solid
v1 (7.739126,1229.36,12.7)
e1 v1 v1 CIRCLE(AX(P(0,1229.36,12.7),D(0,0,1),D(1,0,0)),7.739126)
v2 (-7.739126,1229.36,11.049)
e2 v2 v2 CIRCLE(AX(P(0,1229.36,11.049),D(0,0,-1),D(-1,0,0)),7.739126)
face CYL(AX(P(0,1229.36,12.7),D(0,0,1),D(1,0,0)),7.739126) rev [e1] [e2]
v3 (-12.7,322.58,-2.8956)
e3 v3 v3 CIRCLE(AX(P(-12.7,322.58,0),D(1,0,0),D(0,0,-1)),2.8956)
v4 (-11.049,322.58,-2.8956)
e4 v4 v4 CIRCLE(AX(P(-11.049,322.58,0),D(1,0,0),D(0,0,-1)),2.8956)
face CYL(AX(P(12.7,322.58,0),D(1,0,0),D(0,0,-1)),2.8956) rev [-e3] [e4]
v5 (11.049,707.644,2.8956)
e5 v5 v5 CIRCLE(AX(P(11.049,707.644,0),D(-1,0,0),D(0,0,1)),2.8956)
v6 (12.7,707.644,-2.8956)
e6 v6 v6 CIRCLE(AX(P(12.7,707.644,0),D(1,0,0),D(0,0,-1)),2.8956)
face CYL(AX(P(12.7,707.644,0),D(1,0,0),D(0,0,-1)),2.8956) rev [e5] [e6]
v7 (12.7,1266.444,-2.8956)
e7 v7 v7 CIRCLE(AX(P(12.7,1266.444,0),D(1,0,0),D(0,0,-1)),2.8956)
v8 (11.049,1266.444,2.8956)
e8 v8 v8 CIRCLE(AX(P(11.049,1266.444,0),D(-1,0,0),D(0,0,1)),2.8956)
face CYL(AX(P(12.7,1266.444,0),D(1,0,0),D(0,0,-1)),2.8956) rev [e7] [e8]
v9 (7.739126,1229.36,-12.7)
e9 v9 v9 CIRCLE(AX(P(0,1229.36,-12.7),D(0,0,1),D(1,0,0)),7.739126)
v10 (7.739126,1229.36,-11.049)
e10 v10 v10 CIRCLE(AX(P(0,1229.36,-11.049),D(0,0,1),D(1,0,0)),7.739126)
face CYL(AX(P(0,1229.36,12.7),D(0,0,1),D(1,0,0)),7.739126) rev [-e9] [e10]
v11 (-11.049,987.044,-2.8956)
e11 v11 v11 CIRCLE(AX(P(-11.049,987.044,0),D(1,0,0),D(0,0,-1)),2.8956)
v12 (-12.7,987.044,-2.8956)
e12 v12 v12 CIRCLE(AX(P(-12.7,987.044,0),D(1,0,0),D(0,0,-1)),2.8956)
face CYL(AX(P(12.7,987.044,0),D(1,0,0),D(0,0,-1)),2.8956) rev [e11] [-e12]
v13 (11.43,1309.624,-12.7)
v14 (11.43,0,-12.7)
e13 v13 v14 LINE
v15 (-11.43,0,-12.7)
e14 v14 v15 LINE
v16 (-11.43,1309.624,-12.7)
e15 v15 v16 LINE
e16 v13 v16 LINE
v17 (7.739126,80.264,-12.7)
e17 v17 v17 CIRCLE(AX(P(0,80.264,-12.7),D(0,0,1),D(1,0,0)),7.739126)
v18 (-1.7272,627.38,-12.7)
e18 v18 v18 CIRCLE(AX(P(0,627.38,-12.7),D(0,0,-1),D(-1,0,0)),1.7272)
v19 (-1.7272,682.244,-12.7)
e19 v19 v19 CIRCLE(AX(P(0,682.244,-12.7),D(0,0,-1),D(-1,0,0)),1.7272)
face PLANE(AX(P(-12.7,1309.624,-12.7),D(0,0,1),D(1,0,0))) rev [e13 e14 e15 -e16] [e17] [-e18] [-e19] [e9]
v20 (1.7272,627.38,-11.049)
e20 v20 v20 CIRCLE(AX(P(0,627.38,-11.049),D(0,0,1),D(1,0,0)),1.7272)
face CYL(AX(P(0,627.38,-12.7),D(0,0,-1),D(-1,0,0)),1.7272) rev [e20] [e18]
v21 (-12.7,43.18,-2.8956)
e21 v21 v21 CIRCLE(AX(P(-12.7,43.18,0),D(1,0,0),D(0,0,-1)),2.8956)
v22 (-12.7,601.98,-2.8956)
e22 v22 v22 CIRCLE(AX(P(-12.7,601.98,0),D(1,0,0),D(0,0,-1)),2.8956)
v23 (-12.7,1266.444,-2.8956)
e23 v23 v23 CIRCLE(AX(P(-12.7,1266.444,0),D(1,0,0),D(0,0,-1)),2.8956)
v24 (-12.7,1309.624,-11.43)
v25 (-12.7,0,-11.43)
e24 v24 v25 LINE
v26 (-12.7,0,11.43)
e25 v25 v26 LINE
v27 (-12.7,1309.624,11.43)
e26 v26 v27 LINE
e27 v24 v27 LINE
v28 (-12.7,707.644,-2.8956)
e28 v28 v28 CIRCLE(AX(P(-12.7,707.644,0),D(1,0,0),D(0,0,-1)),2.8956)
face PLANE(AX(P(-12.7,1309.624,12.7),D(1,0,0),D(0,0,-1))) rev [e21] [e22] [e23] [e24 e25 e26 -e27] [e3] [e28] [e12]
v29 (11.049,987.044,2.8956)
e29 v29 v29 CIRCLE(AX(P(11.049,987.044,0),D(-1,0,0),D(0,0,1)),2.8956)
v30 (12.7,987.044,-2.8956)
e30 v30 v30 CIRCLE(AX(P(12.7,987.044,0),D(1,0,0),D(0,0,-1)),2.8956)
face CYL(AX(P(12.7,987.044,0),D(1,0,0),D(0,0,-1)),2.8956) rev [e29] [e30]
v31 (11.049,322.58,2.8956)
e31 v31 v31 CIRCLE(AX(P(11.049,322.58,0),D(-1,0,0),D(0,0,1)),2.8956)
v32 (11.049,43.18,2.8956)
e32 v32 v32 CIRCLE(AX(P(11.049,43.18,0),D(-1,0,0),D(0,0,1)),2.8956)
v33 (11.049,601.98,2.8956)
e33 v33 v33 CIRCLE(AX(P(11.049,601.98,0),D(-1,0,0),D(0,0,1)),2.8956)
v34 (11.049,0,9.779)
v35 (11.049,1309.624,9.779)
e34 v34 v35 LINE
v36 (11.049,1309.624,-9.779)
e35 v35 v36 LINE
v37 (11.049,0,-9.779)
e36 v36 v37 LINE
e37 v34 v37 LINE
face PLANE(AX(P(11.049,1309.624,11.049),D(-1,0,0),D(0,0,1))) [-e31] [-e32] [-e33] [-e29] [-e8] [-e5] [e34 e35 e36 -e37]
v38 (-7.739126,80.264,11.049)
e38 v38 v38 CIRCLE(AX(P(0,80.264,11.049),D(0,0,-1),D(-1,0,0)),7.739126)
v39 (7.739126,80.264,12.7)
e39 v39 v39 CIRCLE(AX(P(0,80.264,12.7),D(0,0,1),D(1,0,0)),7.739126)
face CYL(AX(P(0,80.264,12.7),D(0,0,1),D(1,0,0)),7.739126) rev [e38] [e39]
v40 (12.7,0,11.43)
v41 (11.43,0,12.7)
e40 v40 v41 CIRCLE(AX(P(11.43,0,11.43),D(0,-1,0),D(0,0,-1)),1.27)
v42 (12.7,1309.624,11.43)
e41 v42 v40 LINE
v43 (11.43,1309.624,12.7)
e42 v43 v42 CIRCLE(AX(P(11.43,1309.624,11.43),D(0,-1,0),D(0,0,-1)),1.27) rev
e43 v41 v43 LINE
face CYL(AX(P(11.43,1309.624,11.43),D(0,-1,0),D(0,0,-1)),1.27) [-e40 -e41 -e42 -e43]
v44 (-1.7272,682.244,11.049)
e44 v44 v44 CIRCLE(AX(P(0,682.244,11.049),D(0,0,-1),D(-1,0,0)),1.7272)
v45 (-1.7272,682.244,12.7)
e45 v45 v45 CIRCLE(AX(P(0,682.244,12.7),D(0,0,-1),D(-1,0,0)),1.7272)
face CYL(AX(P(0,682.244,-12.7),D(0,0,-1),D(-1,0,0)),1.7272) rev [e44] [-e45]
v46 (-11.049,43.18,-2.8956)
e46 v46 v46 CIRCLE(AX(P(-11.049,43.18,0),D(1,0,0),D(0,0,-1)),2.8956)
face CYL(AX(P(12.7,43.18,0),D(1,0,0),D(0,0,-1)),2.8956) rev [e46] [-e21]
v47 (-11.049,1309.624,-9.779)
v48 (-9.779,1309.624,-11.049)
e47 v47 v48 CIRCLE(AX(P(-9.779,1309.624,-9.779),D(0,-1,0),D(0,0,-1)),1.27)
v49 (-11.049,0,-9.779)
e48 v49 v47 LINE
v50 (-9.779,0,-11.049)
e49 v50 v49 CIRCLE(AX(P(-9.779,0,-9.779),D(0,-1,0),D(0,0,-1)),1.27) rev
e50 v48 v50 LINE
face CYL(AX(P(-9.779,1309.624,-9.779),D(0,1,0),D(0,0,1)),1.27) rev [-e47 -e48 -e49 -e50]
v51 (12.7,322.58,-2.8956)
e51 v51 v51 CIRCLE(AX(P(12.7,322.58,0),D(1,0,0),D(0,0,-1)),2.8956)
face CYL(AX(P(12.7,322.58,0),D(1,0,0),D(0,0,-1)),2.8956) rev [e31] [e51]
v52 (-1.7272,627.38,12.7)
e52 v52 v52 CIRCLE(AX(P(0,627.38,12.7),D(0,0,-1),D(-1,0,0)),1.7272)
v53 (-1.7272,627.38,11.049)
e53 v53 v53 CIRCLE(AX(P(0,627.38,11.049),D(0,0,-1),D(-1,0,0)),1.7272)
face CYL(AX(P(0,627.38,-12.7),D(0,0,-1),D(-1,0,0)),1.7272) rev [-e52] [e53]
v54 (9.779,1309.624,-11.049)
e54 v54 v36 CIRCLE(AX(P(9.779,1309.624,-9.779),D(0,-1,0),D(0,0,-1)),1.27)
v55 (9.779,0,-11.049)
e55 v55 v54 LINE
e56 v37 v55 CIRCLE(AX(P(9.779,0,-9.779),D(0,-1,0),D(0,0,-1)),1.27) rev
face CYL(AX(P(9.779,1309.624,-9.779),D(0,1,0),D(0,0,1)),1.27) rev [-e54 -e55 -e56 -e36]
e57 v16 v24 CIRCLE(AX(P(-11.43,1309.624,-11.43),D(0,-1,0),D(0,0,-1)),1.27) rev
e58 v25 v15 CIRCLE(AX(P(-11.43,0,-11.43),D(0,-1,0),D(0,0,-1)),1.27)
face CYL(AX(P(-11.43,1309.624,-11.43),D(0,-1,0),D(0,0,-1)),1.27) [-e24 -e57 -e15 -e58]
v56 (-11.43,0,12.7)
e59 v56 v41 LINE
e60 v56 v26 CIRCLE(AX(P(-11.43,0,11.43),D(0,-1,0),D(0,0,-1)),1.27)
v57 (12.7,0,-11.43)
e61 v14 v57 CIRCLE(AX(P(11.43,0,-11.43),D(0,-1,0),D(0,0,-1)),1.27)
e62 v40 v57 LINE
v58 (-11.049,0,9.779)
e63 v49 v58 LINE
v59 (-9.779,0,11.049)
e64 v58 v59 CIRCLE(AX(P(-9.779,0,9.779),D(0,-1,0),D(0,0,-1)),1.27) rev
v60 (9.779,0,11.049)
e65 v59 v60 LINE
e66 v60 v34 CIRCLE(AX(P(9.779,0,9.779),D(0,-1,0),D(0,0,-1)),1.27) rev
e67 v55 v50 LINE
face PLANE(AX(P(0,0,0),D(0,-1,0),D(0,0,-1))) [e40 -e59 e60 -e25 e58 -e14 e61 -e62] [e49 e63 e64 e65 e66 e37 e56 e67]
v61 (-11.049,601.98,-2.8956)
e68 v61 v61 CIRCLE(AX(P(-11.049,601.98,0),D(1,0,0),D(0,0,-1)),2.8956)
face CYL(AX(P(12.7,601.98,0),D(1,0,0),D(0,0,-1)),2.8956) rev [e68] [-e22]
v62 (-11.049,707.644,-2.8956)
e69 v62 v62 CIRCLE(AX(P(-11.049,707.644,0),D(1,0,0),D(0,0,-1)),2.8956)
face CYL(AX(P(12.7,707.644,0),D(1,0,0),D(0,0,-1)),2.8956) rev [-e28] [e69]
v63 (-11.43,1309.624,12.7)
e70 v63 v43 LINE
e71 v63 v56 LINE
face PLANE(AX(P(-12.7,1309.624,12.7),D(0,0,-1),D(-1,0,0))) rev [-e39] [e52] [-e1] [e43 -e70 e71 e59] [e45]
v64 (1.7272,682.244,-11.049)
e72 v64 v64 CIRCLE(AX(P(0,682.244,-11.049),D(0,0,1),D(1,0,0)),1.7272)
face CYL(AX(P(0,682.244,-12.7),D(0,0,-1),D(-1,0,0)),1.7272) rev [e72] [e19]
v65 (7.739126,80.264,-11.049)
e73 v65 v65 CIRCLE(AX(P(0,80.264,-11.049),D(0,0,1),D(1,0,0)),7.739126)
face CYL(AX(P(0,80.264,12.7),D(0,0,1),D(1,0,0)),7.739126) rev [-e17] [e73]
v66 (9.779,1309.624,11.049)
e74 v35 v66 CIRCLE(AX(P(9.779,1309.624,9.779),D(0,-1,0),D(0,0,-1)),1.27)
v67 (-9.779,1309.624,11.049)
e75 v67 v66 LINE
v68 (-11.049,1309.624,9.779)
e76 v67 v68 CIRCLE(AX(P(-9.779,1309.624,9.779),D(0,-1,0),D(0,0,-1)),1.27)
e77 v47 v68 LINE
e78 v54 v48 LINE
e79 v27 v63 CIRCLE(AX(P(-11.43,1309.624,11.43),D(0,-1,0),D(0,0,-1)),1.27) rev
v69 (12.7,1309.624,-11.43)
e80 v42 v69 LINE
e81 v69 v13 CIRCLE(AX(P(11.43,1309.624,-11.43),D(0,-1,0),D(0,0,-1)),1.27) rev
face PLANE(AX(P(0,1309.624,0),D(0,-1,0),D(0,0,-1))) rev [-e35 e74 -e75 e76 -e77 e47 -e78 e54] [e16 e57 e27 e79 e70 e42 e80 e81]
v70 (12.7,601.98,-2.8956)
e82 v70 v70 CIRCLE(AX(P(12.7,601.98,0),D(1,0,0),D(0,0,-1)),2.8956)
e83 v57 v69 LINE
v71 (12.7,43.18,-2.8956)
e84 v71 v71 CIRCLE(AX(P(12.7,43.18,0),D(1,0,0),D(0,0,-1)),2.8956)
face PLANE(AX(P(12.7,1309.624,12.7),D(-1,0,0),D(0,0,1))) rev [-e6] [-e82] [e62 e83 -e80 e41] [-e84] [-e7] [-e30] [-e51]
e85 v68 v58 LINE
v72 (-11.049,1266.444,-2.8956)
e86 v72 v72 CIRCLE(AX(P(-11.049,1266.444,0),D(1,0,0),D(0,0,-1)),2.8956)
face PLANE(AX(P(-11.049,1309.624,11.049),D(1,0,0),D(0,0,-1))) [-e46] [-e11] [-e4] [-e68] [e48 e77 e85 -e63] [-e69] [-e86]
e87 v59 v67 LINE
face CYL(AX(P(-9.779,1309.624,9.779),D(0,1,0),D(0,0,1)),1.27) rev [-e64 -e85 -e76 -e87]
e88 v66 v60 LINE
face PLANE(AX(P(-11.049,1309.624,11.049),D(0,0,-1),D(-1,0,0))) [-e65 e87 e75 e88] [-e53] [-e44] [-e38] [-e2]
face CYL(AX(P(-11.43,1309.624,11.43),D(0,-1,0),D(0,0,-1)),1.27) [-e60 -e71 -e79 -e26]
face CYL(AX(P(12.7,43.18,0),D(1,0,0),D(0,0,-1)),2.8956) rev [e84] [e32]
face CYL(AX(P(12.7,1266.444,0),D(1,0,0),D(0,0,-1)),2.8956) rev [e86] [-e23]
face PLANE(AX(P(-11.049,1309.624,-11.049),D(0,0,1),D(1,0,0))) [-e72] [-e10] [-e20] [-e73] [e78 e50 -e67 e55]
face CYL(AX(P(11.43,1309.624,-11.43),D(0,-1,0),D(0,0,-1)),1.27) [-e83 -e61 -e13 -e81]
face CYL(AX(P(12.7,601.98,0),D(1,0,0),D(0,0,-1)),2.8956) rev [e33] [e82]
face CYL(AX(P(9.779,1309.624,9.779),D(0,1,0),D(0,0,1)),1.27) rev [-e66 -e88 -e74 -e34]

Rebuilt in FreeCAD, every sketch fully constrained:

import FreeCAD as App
import Part
import Sketcher
Q = App.Units.Quantity


def edges_at(feature, points):
    """Names of the edges that pass closest to the given points."""
    edges = feature.Shape.Edges
    near = lambda p: min(range(len(edges)), key=lambda i: edges[i].distToShape(Part.Vertex(*p))[0])
    return sorted({f"Edge{near(p) + 1}" for p in points})

doc = App.newDocument("Part")
body = doc.addObject("PartDesign::Body", "Body")

# Sketch on XZ plane
sketch1 = body.newObject("Sketcher::SketchObject", "Sketch")
sketch1.AttachmentSupport = (doc.getObject("XZ_Plane"), [""])
sketch1.MapMode = "FlatFace"
sketch1.addGeometry([
    Part.LineSegment(App.Vector(-13, -13, 0), App.Vector(-13, 13, 0)),  # 0
    Part.LineSegment(App.Vector(-13, 13, 0), App.Vector(13, 13, 0)),  # 1
    Part.LineSegment(App.Vector(13, 13, 0), App.Vector(13, -13, 0)),  # 2
    Part.LineSegment(App.Vector(13, -13, 0), App.Vector(-13, -13, 0)),  # 3
    Part.LineSegment(App.Vector(11, 11, 0), App.Vector(-11, 11, 0)),  # 4
    Part.LineSegment(App.Vector(-11, 11, 0), App.Vector(-11, -11, 0)),  # 5
    Part.LineSegment(App.Vector(-11, -11, 0), App.Vector(11, -11, 0)),  # 6
    Part.LineSegment(App.Vector(11, -11, 0), App.Vector(11, 11, 0)),  # 7
], False)
sketch1.addConstraint([
    Sketcher.Constraint("Coincident", 0, 2, 1, 1),
    Sketcher.Constraint("Coincident", 1, 2, 2, 1),
    Sketcher.Constraint("Coincident", 2, 2, 3, 1),
    Sketcher.Constraint("Coincident", 3, 2, 0, 1),
    Sketcher.Constraint("Coincident", 4, 2, 5, 1),
    Sketcher.Constraint("Coincident", 5, 2, 6, 1),
    Sketcher.Constraint("Coincident", 6, 2, 7, 1),
    Sketcher.Constraint("Coincident", 7, 2, 4, 1),
    Sketcher.Constraint("Vertical", 0),
    Sketcher.Constraint("Horizontal", 1),
    Sketcher.Constraint("Vertical", 2),
    Sketcher.Constraint("Horizontal", 3),
    Sketcher.Constraint("Horizontal", 4),
    Sketcher.Constraint("Vertical", 5),
    Sketcher.Constraint("Horizontal", 6),
    Sketcher.Constraint("Vertical", 7),
    Sketcher.Constraint("Symmetric", 0, 2, 2, 2, -1, 1),
    Sketcher.Constraint("Symmetric", 4, 2, 6, 2, -1, 1),
    Sketcher.Constraint("Equal", 3, 0),
    Sketcher.Constraint("Equal", 6, 5),
    Sketcher.Constraint("DistanceX", 1, 1, 1, 2, Q("1 in")),
    Sketcher.Constraint("DistanceX", 4, 2, 4, 1, Q("0.87 in")),
])
pad1 = body.newObject("PartDesign::Pad", "Pad")
pad1.Profile = sketch1
pad1.Length = Q("51.56 in")
pad1.Reversed = True
doc.recompute()

fillet = body.newObject("PartDesign::Fillet", "Fillet")
fillet.Base = (pad1, edges_at(pad1, [
    (-11.049, 654.812, 11.049),
    (11.049, 654.812, 11.049),
    (11.049, 654.812, -11.049),
    (-11.049, 654.812, -11.049),
    (12.7, 654.812, 12.7),
    (-12.7, 654.812, 12.7),
    (-12.7, 654.812, -12.7),
    (12.7, 654.812, -12.7),
]))
fillet.Radius = Q("0.05 in")

# Sketch on YZ plane
sketch2 = body.newObject("Sketcher::SketchObject", "Sketch001")
sketch2.AttachmentSupport = (doc.getObject("YZ_Plane"), [""])
sketch2.MapMode = "FlatFace"
sketch2.AttachmentOffset = App.Placement(App.Vector(0, 0, 0.5 * 25.4), App.Rotation())
sketch2.addGeometry([
    Part.Circle(App.Vector(602, 0, 0), App.Vector(0, 0, 1), 2.9),  # 0
    Part.Circle(App.Vector(1266.4, 0, 0), App.Vector(0, 0, 1), 2.9),  # 1
    Part.Circle(App.Vector(987, 0, 0), App.Vector(0, 0, 1), 2.9),  # 2
    Part.Circle(App.Vector(707.6, 0, 0), App.Vector(0, 0, 1), 2.9),  # 3
    Part.Circle(App.Vector(43.2, 0, 0), App.Vector(0, 0, 1), 2.9),  # 4
    Part.Circle(App.Vector(322.6, 0, 0), App.Vector(0, 0, 1), 2.9),  # 5
], False)
sketch2.addConstraint([
    Sketcher.Constraint("Equal", 0, 1),
    Sketcher.Constraint("Equal", 1, 2),
    Sketcher.Constraint("Equal", 2, 3),
    Sketcher.Constraint("Equal", 3, 4),
    Sketcher.Constraint("Equal", 4, 5),
    Sketcher.Constraint("PointOnObject", 0, 3, -1),
    Sketcher.Constraint("PointOnObject", 1, 3, -1),
    Sketcher.Constraint("PointOnObject", 2, 3, -1),
    Sketcher.Constraint("PointOnObject", 3, 3, -1),
    Sketcher.Constraint("PointOnObject", 4, 3, -1),
    Sketcher.Constraint("PointOnObject", 5, 3, -1),
    Sketcher.Constraint("Diameter", 0, Q("0.228 in")),
    Sketcher.Constraint("DistanceX", 2, 3, 1, 3, Q("11 in")),
    Sketcher.Constraint("DistanceX", 3, 3, 2, 3, Q("11 in")),
    Sketcher.Constraint("DistanceX", 4, 3, 0, 3, Q("22 in")),
    Sketcher.Constraint("DistanceX", 4, 3, 5, 3, Q("11 in")),
    Sketcher.Constraint("DistanceX", -1, 1, 0, 3, Q("23.7 in")),
    Sketcher.Constraint("DistanceX", -1, 1, 1, 3, Q("49.86 in")),
])
doc.recompute()
hole = body.newObject("PartDesign::Hole", "Hole")
hole.Profile = sketch2
hole.ThreadType = "None"
hole.Diameter = Q("0.228 in")
hole.DepthType = "ThroughAll"

# Sketch on XY plane
sketch3 = body.newObject("Sketcher::SketchObject", "Sketch002")
sketch3.AttachmentSupport = (doc.getObject("XY_Plane"), [""])
sketch3.MapMode = "FlatFace"
sketch3.AttachmentOffset = App.Placement(App.Vector(0, 0, -0.5 * 25.4), App.Rotation())
sketch3.addGeometry([
    Part.Circle(App.Vector(0, 627.4, 0), App.Vector(0, 0, 1), 1.7),
    Part.Circle(App.Vector(0, 682.2, 0), App.Vector(0, 0, 1), 1.7),
], False)
sketch3.addConstraint([
    Sketcher.Constraint("Equal", 0, 1),
    Sketcher.Constraint("PointOnObject", 0, 3, -2),
    Sketcher.Constraint("PointOnObject", 1, 3, -2),
    Sketcher.Constraint("Diameter", 0, Q("0.136 in")),
    Sketcher.Constraint("DistanceY", -1, 1, 0, 3, Q("24.7 in")),
    Sketcher.Constraint("DistanceY", -1, 1, 1, 3, Q("26.86 in")),
])
doc.recompute()
hole2 = body.newObject("PartDesign::Hole", "Hole001")
hole2.Profile = sketch3
hole2.ThreadType = "None"
hole2.Diameter = Q("0.136 in")
hole2.DepthType = "ThroughAll"
hole2.Reversed = True

# Sketch on XY plane
sketch4 = body.newObject("Sketcher::SketchObject", "Sketch003")
sketch4.AttachmentSupport = (doc.getObject("XY_Plane"), [""])
sketch4.MapMode = "FlatFace"
sketch4.AttachmentOffset = App.Placement(App.Vector(0, 0, 0.5 * 25.4), App.Rotation())
sketch4.addGeometry([
    Part.Circle(App.Vector(0, 1229, 0), App.Vector(0, 0, 1), 8),
    Part.Circle(App.Vector(0, 80, 0), App.Vector(0, 0, 1), 8),
], False)
sketch4.addConstraint([
    Sketcher.Constraint("Equal", 0, 1),
    Sketcher.Constraint("PointOnObject", 0, 3, -2),
    Sketcher.Constraint("PointOnObject", 1, 3, -2),
    Sketcher.Constraint("DistanceY", -1, 1, 0, 3, Q("48.4 in")),
    Sketcher.Constraint("DistanceY", -1, 1, 1, 3, Q("3.16 in")),
    Sketcher.Constraint("Diameter", 0, 15.478252),
])
doc.recompute()
hole3 = body.newObject("PartDesign::Hole", "Hole002")
hole3.Profile = sketch4
hole3.ThreadType = "None"
hole3.Diameter = 15.478252
hole3.DepthType = "ThroughAll"

doc.recompute()
